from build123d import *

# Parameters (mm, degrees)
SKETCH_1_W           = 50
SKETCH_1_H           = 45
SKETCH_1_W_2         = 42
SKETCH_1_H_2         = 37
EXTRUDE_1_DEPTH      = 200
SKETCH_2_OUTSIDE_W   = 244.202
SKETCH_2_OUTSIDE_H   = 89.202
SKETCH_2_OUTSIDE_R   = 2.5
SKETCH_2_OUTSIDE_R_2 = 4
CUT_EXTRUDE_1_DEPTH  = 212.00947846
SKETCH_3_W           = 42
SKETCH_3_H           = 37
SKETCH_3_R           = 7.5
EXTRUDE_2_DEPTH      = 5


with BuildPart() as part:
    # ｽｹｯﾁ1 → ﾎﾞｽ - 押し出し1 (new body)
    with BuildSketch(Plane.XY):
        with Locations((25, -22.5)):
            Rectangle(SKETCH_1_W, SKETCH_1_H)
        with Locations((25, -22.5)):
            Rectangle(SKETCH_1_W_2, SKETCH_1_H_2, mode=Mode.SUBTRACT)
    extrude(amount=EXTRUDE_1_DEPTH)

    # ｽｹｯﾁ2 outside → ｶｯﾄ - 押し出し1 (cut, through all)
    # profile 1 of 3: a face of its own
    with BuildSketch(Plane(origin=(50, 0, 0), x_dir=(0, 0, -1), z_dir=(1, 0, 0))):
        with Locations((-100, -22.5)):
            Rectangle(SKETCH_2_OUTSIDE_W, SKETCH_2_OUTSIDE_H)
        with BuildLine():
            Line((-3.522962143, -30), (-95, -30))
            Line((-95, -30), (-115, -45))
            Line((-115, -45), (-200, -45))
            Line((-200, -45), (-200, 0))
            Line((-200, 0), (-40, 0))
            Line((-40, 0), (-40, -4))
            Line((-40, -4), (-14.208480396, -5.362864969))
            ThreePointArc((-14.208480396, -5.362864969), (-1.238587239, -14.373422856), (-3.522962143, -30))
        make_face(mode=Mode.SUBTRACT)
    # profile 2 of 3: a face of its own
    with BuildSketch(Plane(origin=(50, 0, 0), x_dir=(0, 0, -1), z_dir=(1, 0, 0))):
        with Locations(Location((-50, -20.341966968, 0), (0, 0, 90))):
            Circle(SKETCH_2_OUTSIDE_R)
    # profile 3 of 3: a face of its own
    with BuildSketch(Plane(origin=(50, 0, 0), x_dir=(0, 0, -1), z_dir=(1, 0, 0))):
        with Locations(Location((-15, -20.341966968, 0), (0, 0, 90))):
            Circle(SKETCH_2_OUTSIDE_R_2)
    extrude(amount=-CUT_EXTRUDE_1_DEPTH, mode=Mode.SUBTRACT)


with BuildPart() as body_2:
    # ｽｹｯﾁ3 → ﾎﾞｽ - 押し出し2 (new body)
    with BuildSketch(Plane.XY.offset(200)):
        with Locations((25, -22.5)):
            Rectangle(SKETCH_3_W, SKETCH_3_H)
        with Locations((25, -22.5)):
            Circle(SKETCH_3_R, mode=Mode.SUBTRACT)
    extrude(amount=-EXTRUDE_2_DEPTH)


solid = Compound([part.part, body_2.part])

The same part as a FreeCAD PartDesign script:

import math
import FreeCAD as App
import Part
import Sketcher

doc = App.newDocument("Part")
params = doc.addObject("Spreadsheet::Sheet", "Params")
for row, (alias, value) in enumerate([
    ("sketch1_width", "50 mm"),
    ("sketch1_width2", "42 mm"),
    ("sketch1_height", "45 mm"),
    ("sketch1_height2", "37 mm"),
    ("pad1_length", "200 mm"),
    ("sketch2_diameter", "5 mm"),
    ("sketch2_diameter2", "8 mm"),
    ("sketch2_radius", "15 mm"),
    ("sketch2_width", "45 mm"),
    ("sketch2_width2", "4 mm"),
    ("pocket1_length", "212.009478 mm"),
    ("sketch3_diameter", "15 mm"),
    ("sketch3_width", "42 mm"),
    ("sketch3_height", "37 mm"),
    ("pad2_length", "5 mm"),
], start=1):
    params.set(f"A{row}", alias)
    params.set(f"B{row}", "=" + value)
    params.setAlias(f"B{row}", alias)

body = doc.addObject("PartDesign::Body", "Body")

sketch1 = body.newObject("Sketcher::SketchObject", "Sketch")
sketch1.AttachmentSupport = (doc.getObject("XY_Plane"), [""])
sketch1.MapMode = "FlatFace"
sketch1.addGeometry([
    Part.LineSegment(App.Vector(0, 0, 0), App.Vector(0, -45, 0)),
    Part.LineSegment(App.Vector(0, -45, 0), App.Vector(50, -45, 0)),
    Part.LineSegment(App.Vector(50, -45, 0), App.Vector(50, 0, 0)),
    Part.LineSegment(App.Vector(50, 0, 0), App.Vector(0, 0, 0)),
    Part.LineSegment(App.Vector(46, -41, 0), App.Vector(4, -41, 0)),
    Part.LineSegment(App.Vector(4, -41, 0), App.Vector(4, -4, 0)),
    Part.LineSegment(App.Vector(4, -4, 0), App.Vector(46, -4, 0)),
    Part.LineSegment(App.Vector(46, -4, 0), App.Vector(46, -41, 0)),
], False)
sketch1.addConstraint([
    Sketcher.Constraint("Coincident", 0, 2, 1, 1),
    Sketcher.Constraint("Coincident", 1, 2, 2, 1),
    Sketcher.Constraint("Coincident", 2, 2, 3, 1),
    Sketcher.Constraint("Coincident", 3, 2, 0, 1),
    Sketcher.Constraint("Coincident", 4, 2, 5, 1),
    Sketcher.Constraint("Coincident", 5, 2, 6, 1),
    Sketcher.Constraint("Coincident", 6, 2, 7, 1),
    Sketcher.Constraint("Coincident", 7, 2, 4, 1),
    Sketcher.Constraint("Vertical", 0),
    Sketcher.Constraint("Horizontal", 1),
    Sketcher.Constraint("Vertical", 2),
    Sketcher.Constraint("Horizontal", 3),
    Sketcher.Constraint("Horizontal", 4),
    Sketcher.Constraint("Vertical", 5),
    Sketcher.Constraint("Horizontal", 6),
    Sketcher.Constraint("Vertical", 7),
    Sketcher.Constraint("Coincident", 3, 2, -1, 1),
    Sketcher.Constraint("DistanceX", 1, 1, 1, 2, 50.0),
    Sketcher.Constraint("DistanceX", 4, 2, 4, 1, 42.0),
    Sketcher.Constraint("DistanceY", 0, 2, 0, 1, 45.0),
    Sketcher.Constraint("DistanceY", 5, 1, 5, 2, 37.0),
    Sketcher.Constraint("DistanceX", -1, 1, 4, 2, 4.0),
    Sketcher.Constraint("DistanceY", 4, 2, -1, 1, 41.0),
])
sketch1.setExpression("Constraints[17]", "Params.sketch1_width")
sketch1.setExpression("Constraints[18]", "Params.sketch1_width2")
sketch1.setExpression("Constraints[19]", "Params.sketch1_height")
sketch1.setExpression("Constraints[20]", "Params.sketch1_height2")
pad1 = body.newObject("PartDesign::Pad", "Pad")
pad1.Profile = sketch1
pad1.setExpression("Length", "Params.pad1_length")

sketch2 = body.newObject("Sketcher::SketchObject", "Sketch001")
sketch2.AttachmentSupport = (doc.getObject("YZ_Plane"), [""])
sketch2.MapMode = "FlatFace"
sketch2.AttachmentOffset = App.Placement(App.Vector(0, 0, 50), App.Rotation())
sketch2.addGeometry([
    Part.LineSegment(App.Vector(22.1, 222.1, 0), App.Vector(-67.1, 222.1, 0)),
    Part.LineSegment(App.Vector(-67.1, 222.1, 0), App.Vector(-67.1, -22.1, 0)),
    Part.LineSegment(App.Vector(-67.1, -22.1, 0), App.Vector(22.1, -22.1, 0)),
    Part.LineSegment(App.Vector(22.1, -22.1, 0), App.Vector(22.1, 222.1, 0)),
    Part.ArcOfCircle(Part.Circle(App.Vector(-20.3, 15, 0), App.Vector(0, 0, 1), 15), math.radians(-130), math.radians(-3)),
    Part.LineSegment(App.Vector(-30, 3.5, 0), App.Vector(-30, 95, 0)),
    Part.LineSegment(App.Vector(-30, 95, 0), App.Vector(-45, 115, 0)),
    Part.LineSegment(App.Vector(-45, 115, 0), App.Vector(-45, 200, 0)),
    Part.LineSegment(App.Vector(-45, 200, 0), App.Vector(0, 200, 0)),
    Part.LineSegment(App.Vector(0, 200, 0), App.Vector(0, 40, 0)),
    Part.LineSegment(App.Vector(0, 40, 0), App.Vector(-4, 40, 0)),
    Part.LineSegment(App.Vector(-4, 40, 0), App.Vector(-5.4, 14.2, 0)),
    Part.Circle(App.Vector(-20.3, 50, 0), App.Vector(0, 0, 1), 2.5),
    Part.Circle(App.Vector(-20.3, 15, 0), App.Vector(0, 0, 1), 4),
], False)
sketch2.addConstraint([
    Sketcher.Constraint("Coincident", 0, 2, 1, 1),
    Sketcher.Constraint("Coincident", 1, 2, 2, 1),
    Sketcher.Constraint("Coincident", 2, 2, 3, 1),
    Sketcher.Constraint("Coincident", 3, 2, 0, 1),
    Sketcher.Constraint("Coincident", 4, 1, 5, 1),
    Sketcher.Constraint("Coincident", 5, 2, 6, 1),
    Sketcher.Constraint("Coincident", 6, 2, 7, 1),
    Sketcher.Constraint("Coincident", 7, 2, 8, 1),
    Sketcher.Constraint("Coincident", 8, 2, 9, 1),
    Sketcher.Constraint("Coincident", 9, 2, 10, 1),
    Sketcher.Constraint("Coincident", 10, 2, 11, 1),
    Sketcher.Constraint("Tangent", 11, 2, 4, 2),
    Sketcher.Constraint("Horizontal", 0),
    Sketcher.Constraint("Vertical", 1),
    Sketcher.Constraint("Horizontal", 2),
    Sketcher.Constraint("Vertical", 3),
    Sketcher.Constraint("Vertical", 5),
    Sketcher.Constraint("Vertical", 7),
    Sketcher.Constraint("Horizontal", 8),
    Sketcher.Constraint("Vertical", 9),
    Sketcher.Constraint("Horizontal", 10),
    Sketcher.Constraint("Coincident", 13, 3, 4, 3),
    Sketcher.Constraint("PointOnObject", 8, 2, -2),
    Sketcher.Constraint("Vertical", 4, 3, 12, 3),
    Sketcher.Constraint("Diameter", 12, 5.0),
    Sketcher.Constraint("Diameter", 13, 8.0),
    Sketcher.Constraint("Radius", 4, 15.0),
    Sketcher.Constraint("DistanceX", 8, 1, 8, 2, 45.0),
    Sketcher.Constraint("DistanceX", 10, 2, 10, 1, 4.0),
    Sketcher.Constraint("DistanceY", 7, 1, 7, 2, 85.0),
    Sketcher.Constraint("DistanceY", 9, 2, 9, 1, 160.0),
    Sketcher.Constraint("Distance", 6, 25.0),
    Sketcher.Constraint("DistanceY", -1, 1, 4, 3, 15.0),
    Sketcher.Constraint("DistanceY", -1, 1, 12, 3, 50.0),
    Sketcher.Constraint("DistanceX", 4, 1, -1, 1, 30.0),
    Sketcher.Constraint("DistanceY", -1, 1, 5, 2, 95.0),
    Sketcher.Constraint("DistanceX", 0, 2, 0, 1, 89.202),
    Sketcher.Constraint("DistanceY", 1, 2, 1, 1, 244.202),
    Sketcher.Constraint("DistanceX", 0, 2, -1, 1, 67.101),
    Sketcher.Constraint("DistanceY", -1, 1, 0, 2, 222.101),
    Sketcher.Constraint("DistanceX", 13, 3, 11, 2, 14.979102),
])
sketch2.setExpression("Constraints[24]", "Params.sketch2_diameter")
sketch2.setExpression("Constraints[25]", "Params.sketch2_diameter2")
sketch2.setExpression("Constraints[26]", "Params.sketch2_radius")
sketch2.setExpression("Constraints[27]", "Params.sketch2_width")
sketch2.setExpression("Constraints[28]", "Params.sketch2_width2")
pocket1 = body.newObject("PartDesign::Pocket", "Pocket")
pocket1.Profile = sketch2
pocket1.setExpression("Length", "Params.pocket1_length")
body2 = doc.addObject("PartDesign::Body", "Body001")

sketch3 = body2.newObject("Sketcher::SketchObject", "Sketch002")
sketch3.AttachmentSupport = (doc.getObject("XY_Plane001"), [""])
sketch3.MapMode = "FlatFace"
sketch3.AttachmentOffset = App.Placement(App.Vector(0, 0, 200), App.Rotation())
sketch3.addGeometry([
    Part.LineSegment(App.Vector(4, -4, 0), App.Vector(4, -41, 0)),
    Part.LineSegment(App.Vector(4, -41, 0), App.Vector(46, -41, 0)),
    Part.LineSegment(App.Vector(46, -41, 0), App.Vector(46, -4, 0)),
    Part.LineSegment(App.Vector(46, -4, 0), App.Vector(4, -4, 0)),
    Part.Circle(App.Vector(25, -22, 0), App.Vector(0, 0, 1), 8),
], False)
sketch3.addConstraint([
    Sketcher.Constraint("Coincident", 0, 2, 1, 1),
    Sketcher.Constraint("Coincident", 1, 2, 2, 1),
    Sketcher.Constraint("Coincident", 2, 2, 3, 1),
    Sketcher.Constraint("Coincident", 3, 2, 0, 1),
    Sketcher.Constraint("Vertical", 0),
    Sketcher.Constraint("Horizontal", 1),
    Sketcher.Constraint("Vertical", 2),
    Sketcher.Constraint("Horizontal", 3),
    Sketcher.Constraint("Diameter", 4, 15.0),
    Sketcher.Constraint("DistanceX", 1, 1, 1, 2, 42.0),
    Sketcher.Constraint("DistanceY", 0, 2, 0, 1, 37.0),
    Sketcher.Constraint("DistanceX", -1, 1, 4, 3, 25.0),
    Sketcher.Constraint("DistanceX", -1, 1, 0, 2, 4.0),
    Sketcher.Constraint("DistanceY", 0, 2, -1, 1, 41.0),
    Sketcher.Constraint("DistanceY", 4, 3, -1, 1, 22.5),
])
sketch3.setExpression("Constraints[8]", "Params.sketch3_diameter")
sketch3.setExpression("Constraints[9]", "Params.sketch3_width")
sketch3.setExpression("Constraints[10]", "Params.sketch3_height")
pad2 = body2.newObject("PartDesign::Pad", "Pad001")
pad2.Profile = sketch3
pad2.setExpression("Length", "Params.pad2_length")
pad2.Reversed = True

doc.recompute()
